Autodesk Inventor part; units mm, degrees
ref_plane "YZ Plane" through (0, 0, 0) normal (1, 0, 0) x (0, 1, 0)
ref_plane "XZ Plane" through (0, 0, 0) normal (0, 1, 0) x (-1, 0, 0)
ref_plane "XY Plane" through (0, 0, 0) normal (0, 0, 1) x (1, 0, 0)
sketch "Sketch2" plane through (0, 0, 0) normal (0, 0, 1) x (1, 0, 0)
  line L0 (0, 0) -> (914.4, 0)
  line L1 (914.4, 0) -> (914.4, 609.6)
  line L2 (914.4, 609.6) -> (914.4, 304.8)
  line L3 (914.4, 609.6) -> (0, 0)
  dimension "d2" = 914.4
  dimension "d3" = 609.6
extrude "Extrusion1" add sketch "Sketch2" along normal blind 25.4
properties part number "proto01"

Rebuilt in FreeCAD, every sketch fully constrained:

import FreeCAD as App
import Part
import Sketcher

V = App.Vector
Q = App.Units.Quantity


def add_polygon(sketch, points):
    """Adds a closed chain of lines whose ends are joined by coincident constraints."""
    first, n = sketch.GeometryCount, len(points)
    for a, b in zip(points, points[1:] + points[:1]):
        sketch.addGeometry(Part.LineSegment(App.Vector(*a, 0), App.Vector(*b, 0)), False)
    for i in range(n):
        sketch.addConstraint(Sketcher.Constraint("Coincident", first + i, 2, first + (i + 1) % n, 1))

doc = App.newDocument("Part")
params = doc.addObject("Spreadsheet::Sheet", "Params")
for row, (alias, value) in enumerate([
    ("sketch1_width", "36 in"),
    ("sketch1_height", "24 in"),
    ("pad1_length", "1 in"),
], start=1):
    params.set(f"A{row}", alias)
    params.set(f"B{row}", "=" + value)
    params.setAlias(f"B{row}", alias)

body = doc.addObject("PartDesign::Body", "Body")

# Sketch on XY plane
sketch1 = body.newObject("Sketcher::SketchObject", "Sketch")
sketch1.AttachmentSupport = (doc.getObject("XY_Plane"), [""])
sketch1.MapMode = "FlatFace"
add_polygon(sketch1, [(914.4, 609.6), (0, 0), (914.4, 0)])  # lines 0-2
sketch1.addConstraint([
    Sketcher.Constraint("Horizontal", 1),
    Sketcher.Constraint("Vertical", 2),
    Sketcher.Constraint("Coincident", 0, 2, -1, 1),
    Sketcher.Constraint("DistanceX", 1, 1, 1, 2, Q("36 in")),
    Sketcher.Constraint("DistanceY", 2, 1, 2, 2, Q("24 in")),
])
sketch1.setExpression("Constraints[6]", "Params.sketch1_width")
sketch1.setExpression("Constraints[7]", "Params.sketch1_height")
pad1 = body.newObject("PartDesign::Pad", "Pad")
pad1.Profile = sketch1
pad1.setExpression("Length", "Params.pad1_length")

doc.recompute()
